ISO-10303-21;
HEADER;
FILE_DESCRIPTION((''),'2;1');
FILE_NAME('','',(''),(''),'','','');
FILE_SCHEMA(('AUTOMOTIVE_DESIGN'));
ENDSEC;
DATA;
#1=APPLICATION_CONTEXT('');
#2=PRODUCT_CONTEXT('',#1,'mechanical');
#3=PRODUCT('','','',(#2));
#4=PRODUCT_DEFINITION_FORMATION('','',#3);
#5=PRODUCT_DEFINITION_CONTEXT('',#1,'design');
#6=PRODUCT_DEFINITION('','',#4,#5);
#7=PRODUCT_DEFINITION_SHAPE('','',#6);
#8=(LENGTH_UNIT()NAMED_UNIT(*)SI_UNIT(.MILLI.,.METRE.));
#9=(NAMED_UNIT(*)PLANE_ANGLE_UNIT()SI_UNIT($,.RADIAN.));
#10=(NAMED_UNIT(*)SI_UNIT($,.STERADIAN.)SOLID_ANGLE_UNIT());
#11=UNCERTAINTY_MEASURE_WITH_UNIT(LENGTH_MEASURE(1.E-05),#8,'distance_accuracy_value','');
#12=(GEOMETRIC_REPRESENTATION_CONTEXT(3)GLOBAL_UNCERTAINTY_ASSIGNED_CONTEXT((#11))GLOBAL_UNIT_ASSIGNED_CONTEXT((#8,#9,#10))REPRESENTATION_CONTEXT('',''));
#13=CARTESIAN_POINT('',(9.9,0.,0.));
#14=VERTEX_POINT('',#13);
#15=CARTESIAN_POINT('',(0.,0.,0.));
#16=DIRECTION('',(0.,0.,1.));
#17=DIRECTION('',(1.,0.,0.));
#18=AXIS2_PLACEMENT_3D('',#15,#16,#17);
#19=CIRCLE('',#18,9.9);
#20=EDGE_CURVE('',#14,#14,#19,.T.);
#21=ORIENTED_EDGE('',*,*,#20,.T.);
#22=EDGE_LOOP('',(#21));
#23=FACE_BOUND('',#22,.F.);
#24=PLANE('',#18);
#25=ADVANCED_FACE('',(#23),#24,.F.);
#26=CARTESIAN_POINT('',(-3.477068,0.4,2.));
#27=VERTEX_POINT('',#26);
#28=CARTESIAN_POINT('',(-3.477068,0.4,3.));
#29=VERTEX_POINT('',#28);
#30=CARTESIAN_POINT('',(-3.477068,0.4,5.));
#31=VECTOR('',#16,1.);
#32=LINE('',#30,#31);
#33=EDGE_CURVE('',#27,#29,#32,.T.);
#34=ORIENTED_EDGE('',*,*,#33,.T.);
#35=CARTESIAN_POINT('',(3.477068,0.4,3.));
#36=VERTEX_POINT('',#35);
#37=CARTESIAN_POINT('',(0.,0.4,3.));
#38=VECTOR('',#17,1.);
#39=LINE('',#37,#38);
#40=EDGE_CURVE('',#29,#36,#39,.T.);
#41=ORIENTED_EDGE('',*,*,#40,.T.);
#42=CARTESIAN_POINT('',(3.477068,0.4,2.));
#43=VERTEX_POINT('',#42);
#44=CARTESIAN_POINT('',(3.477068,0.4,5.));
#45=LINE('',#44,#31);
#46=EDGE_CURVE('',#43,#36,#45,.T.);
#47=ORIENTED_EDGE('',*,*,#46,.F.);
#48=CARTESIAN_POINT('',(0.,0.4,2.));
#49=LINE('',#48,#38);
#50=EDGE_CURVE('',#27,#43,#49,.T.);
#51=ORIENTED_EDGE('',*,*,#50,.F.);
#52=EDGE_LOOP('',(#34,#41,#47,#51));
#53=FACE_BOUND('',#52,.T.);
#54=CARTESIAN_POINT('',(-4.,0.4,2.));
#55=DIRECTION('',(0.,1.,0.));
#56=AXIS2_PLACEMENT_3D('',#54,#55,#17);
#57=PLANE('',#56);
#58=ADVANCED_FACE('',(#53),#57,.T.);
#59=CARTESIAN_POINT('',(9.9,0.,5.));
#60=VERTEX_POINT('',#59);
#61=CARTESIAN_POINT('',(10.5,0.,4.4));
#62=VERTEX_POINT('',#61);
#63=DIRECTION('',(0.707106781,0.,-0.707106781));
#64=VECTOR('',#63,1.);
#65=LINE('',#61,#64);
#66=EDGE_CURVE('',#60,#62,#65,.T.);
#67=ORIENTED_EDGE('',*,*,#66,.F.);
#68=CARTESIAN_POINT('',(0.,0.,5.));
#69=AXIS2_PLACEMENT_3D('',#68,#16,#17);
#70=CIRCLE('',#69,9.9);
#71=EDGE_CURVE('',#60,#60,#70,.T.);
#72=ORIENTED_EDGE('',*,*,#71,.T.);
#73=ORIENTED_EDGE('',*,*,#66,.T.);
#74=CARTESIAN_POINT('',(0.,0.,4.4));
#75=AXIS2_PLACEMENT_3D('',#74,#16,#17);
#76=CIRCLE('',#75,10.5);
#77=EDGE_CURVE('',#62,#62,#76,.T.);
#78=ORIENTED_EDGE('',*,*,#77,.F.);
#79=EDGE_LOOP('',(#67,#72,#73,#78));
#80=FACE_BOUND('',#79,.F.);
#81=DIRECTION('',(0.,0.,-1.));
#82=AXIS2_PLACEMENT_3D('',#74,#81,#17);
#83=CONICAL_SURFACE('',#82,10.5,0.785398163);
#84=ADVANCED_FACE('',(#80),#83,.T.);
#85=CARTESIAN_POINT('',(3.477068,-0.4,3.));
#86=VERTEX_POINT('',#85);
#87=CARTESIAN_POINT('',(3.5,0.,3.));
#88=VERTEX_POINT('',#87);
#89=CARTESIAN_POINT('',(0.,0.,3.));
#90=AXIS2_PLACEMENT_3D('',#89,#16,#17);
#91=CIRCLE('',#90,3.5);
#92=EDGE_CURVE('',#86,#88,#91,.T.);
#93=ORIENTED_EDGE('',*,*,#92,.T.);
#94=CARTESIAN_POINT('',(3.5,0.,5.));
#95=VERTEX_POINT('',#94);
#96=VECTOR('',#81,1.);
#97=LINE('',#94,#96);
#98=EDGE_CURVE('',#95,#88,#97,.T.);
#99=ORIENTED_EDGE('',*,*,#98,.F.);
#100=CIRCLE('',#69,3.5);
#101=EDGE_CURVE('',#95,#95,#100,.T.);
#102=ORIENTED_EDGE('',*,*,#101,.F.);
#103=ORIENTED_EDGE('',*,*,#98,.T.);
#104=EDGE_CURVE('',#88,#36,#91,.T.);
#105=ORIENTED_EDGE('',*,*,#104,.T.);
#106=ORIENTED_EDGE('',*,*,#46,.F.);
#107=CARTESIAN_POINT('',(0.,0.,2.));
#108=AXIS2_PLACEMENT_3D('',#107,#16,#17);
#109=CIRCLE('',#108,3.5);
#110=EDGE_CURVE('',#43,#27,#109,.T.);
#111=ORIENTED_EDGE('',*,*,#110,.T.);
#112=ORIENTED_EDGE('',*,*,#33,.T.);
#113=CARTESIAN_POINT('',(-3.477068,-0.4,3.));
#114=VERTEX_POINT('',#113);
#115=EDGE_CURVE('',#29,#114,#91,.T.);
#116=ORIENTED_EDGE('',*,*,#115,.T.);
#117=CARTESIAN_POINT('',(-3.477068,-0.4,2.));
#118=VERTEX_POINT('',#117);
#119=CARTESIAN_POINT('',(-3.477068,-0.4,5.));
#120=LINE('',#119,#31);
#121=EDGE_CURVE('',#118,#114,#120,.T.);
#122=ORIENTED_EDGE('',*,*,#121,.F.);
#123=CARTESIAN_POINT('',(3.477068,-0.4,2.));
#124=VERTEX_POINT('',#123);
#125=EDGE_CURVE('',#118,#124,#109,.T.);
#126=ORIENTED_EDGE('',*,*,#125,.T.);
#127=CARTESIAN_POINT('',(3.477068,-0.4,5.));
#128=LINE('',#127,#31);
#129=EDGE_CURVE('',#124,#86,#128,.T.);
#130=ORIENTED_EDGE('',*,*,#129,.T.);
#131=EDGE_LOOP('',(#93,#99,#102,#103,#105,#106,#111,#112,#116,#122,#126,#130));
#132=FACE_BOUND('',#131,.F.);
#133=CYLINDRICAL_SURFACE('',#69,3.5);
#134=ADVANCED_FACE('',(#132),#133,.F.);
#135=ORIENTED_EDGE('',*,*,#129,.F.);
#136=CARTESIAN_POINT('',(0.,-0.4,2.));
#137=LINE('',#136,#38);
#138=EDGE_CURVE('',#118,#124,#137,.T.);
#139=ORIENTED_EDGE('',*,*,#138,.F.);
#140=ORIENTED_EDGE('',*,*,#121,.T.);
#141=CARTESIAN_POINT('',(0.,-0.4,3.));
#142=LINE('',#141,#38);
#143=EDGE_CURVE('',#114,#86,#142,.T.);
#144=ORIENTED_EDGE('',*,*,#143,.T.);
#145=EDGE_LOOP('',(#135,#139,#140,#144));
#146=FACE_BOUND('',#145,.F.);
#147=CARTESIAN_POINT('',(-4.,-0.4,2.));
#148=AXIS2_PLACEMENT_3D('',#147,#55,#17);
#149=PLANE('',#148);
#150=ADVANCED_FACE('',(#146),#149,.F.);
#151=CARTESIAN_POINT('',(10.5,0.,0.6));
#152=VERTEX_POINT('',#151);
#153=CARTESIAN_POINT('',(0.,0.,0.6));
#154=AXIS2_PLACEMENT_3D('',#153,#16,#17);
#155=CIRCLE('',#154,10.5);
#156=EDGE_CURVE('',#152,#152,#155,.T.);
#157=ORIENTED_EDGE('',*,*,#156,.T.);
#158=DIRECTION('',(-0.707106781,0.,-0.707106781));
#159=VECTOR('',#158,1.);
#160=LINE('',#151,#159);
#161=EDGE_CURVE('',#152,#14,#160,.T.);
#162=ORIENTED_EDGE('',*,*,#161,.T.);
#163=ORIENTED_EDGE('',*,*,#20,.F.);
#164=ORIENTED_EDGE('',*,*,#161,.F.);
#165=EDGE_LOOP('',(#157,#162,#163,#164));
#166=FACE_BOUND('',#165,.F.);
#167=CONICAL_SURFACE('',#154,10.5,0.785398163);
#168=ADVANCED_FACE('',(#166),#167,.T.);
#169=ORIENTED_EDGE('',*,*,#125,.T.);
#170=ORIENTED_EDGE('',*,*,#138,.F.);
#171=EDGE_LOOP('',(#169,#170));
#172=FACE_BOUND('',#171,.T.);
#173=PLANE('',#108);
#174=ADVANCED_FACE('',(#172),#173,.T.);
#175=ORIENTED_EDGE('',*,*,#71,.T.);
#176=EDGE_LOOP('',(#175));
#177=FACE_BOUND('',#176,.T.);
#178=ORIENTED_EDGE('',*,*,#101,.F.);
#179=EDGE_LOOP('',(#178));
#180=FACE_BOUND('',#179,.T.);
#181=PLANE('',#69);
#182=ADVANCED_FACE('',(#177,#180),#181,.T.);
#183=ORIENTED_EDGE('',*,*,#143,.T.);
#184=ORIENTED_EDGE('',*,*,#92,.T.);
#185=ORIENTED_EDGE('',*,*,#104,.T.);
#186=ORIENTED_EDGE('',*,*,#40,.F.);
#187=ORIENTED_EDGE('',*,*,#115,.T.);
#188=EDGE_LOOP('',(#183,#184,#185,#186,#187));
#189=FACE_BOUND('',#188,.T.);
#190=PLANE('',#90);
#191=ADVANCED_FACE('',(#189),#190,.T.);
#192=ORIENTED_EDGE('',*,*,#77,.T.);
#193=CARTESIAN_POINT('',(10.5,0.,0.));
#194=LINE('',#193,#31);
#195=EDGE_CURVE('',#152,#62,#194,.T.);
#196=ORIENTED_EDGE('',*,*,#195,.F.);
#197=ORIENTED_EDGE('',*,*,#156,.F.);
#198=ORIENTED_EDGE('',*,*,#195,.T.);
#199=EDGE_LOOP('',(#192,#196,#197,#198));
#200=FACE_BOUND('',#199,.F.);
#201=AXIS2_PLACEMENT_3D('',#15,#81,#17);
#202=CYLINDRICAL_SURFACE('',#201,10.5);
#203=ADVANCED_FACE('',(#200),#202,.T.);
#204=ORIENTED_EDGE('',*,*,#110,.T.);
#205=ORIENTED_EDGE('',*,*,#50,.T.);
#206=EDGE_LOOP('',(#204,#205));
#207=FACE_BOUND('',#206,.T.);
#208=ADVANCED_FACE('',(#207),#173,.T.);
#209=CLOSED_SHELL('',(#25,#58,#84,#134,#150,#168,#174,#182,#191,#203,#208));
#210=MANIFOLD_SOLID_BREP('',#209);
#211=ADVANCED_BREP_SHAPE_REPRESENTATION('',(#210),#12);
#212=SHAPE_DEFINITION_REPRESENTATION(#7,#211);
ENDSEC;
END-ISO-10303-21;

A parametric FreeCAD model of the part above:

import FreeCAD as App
import Part
import Sketcher

V = App.Vector


def edges_at(feature, points):
    """Names of the edges that pass closest to the given points."""
    edges = feature.Shape.Edges
    near = lambda p: min(range(len(edges)), key=lambda i: edges[i].distToShape(Part.Vertex(*p))[0])
    return sorted({f"Edge{near(p) + 1}" for p in points})


def add_polygon(sketch, points):
    """Adds a closed chain of lines whose ends are joined by coincident constraints."""
    first, n = sketch.GeometryCount, len(points)
    for a, b in zip(points, points[1:] + points[:1]):
        sketch.addGeometry(Part.LineSegment(App.Vector(*a, 0), App.Vector(*b, 0)), False)
    for i in range(n):
        sketch.addConstraint(Sketcher.Constraint("Coincident", first + i, 2, first + (i + 1) % n, 1))

doc = App.newDocument("Part")
body = doc.addObject("PartDesign::Body", "Body")

# Sketch on XY plane
sketch1 = body.newObject("Sketcher::SketchObject", "Sketch")
sketch1.AttachmentSupport = (doc.getObject("XY_Plane"), [""])
sketch1.MapMode = "FlatFace"
sketch1.addGeometry(Part.Circle(V(0, 0, 0), V(0, 0, 1), 10), False)
sketch1.addConstraint([
    Sketcher.Constraint("Coincident", 0, 3, -1, 1),
    Sketcher.Constraint("Diameter", 0, 21.0),
])
pad1 = body.newObject("PartDesign::Pad", "Pad")
pad1.Profile = sketch1
pad1.Length = 5

# Sketch on XY plane
sketch2 = body.newObject("Sketcher::SketchObject", "Sketch001")
sketch2.AttachmentSupport = (doc.getObject("XY_Plane"), [""])
sketch2.MapMode = "FlatFace"
sketch2.AttachmentOffset = App.Placement(V(0, 0, 5), App.Rotation())
sketch2.addGeometry(Part.Circle(V(0, 0, 0), V(0, 0, 1), 3.5), False)
sketch2.addConstraint([
    Sketcher.Constraint("Coincident", 0, 3, -1, 1),
    Sketcher.Constraint("Diameter", 0, 7.0),
])
pocket1 = body.newObject("PartDesign::Pocket", "Pocket")
pocket1.Profile = sketch2
pocket1.Length = 3

# Sketch on XY plane
sketch3 = body.newObject("Sketcher::SketchObject", "Sketch002")
sketch3.AttachmentSupport = (doc.getObject("XY_Plane"), [""])
sketch3.MapMode = "FlatFace"
sketch3.AttachmentOffset = App.Placement(V(0, 0, 2), App.Rotation())
add_polygon(sketch3, [(-4, 0.4), (-4, -0.4), (4, -0.4), (4, 0.4)])  # lines 0-3
sketch3.addConstraint([
    Sketcher.Constraint("Vertical", 0),
    Sketcher.Constraint("Horizontal", 1),
    Sketcher.Constraint("Vertical", 2),
    Sketcher.Constraint("Horizontal", 3),
    Sketcher.Constraint("Symmetric", 0, 2, 2, 2, -1, 1),
    Sketcher.Constraint("DistanceX", 1, 1, 1, 2, 8.0),
    Sketcher.Constraint("DistanceY", 0, 2, 0, 1, 0.8),
])
pad2 = body.newObject("PartDesign::Pad", "Pad001")
pad2.Profile = sketch3
pad2.Length = 1
doc.recompute()

chamfer = body.newObject("PartDesign::Chamfer", "Chamfer")
chamfer.Base = (pad2, edges_at(pad2, [(-10.5, 0, 5), (-10.5, 0, 0)]))
chamfer.Size = 0.6

doc.recompute()
